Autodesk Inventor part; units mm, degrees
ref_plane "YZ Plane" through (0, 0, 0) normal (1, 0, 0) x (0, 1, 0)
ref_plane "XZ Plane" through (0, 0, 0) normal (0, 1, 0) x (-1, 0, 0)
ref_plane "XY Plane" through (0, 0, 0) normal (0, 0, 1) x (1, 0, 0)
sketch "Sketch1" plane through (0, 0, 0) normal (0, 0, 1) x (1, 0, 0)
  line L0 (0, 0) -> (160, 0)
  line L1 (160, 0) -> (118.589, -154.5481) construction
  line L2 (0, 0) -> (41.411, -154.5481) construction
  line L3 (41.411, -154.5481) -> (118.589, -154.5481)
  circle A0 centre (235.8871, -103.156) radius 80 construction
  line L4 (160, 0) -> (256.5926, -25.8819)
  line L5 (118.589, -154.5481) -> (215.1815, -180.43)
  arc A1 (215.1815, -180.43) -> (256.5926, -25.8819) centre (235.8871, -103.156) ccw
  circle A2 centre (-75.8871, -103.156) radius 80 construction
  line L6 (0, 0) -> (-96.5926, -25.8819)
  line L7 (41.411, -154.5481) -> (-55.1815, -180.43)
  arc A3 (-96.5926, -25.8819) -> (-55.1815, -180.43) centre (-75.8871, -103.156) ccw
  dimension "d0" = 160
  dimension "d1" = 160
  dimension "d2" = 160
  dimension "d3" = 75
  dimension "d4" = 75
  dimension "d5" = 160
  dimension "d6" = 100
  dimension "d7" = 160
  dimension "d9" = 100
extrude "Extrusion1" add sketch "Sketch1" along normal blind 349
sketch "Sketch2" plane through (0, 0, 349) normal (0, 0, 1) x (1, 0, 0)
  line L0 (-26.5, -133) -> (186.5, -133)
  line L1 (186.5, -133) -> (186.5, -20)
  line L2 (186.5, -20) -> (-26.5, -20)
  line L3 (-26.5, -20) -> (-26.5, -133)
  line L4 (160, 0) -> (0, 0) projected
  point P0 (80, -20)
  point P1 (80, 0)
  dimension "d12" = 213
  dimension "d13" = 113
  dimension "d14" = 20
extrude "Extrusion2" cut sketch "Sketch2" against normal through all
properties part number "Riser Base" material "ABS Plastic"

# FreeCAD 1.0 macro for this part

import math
import FreeCAD as App
import Part
import Sketcher
Q = App.Units.Quantity


def add_polygon(sketch, points):
    """Adds a closed chain of lines whose ends are joined by coincident constraints."""
    first, n = sketch.GeometryCount, len(points)
    for a, b in zip(points, points[1:] + points[:1]):
        sketch.addGeometry(Part.LineSegment(App.Vector(*a, 0), App.Vector(*b, 0)), False)
    for i in range(n):
        sketch.addConstraint(Sketcher.Constraint("Coincident", first + i, 2, first + (i + 1) % n, 1))

doc = App.newDocument("Part")
body = doc.addObject("PartDesign::Body", "Body")

# Sketch on XY plane
sketch1 = body.newObject("Sketcher::SketchObject", "Sketch")
sketch1.AttachmentSupport = (doc.getObject("XY_Plane"), [""])
sketch1.MapMode = "FlatFace"
sketch1.addGeometry([
    Part.LineSegment(App.Vector(160, 0, 0), App.Vector(0, 0, 0)),  # 0
    Part.LineSegment(App.Vector(0, 0, 0), App.Vector(-96.5926, -25.8819, 0)),  # 1
    Part.ArcOfCircle(Part.Circle(App.Vector(-75.8871, -103.156, 0), App.Vector(0, 0, 1), 80), math.radians(104.999977), math.radians(285.000065)),  # 2
    Part.LineSegment(App.Vector(-55.1815, -180.43, 0), App.Vector(41.411, -154.5481, 0)),  # 3
    Part.LineSegment(App.Vector(41.411, -154.5481, 0), App.Vector(118.589, -154.5481, 0)),  # 4
    Part.LineSegment(App.Vector(118.589, -154.5481, 0), App.Vector(215.1815, -180.43, 0)),  # 5
    Part.ArcOfCircle(Part.Circle(App.Vector(235.8871, -103.156, 0), App.Vector(0, 0, 1), 80), math.radians(-105.000065), math.radians(75.000023)),  # 6
    Part.LineSegment(App.Vector(256.5926, -25.8819, 0), App.Vector(160, 0, 0)),  # 7
], False)
sketch1.addConstraint([
    Sketcher.Constraint("Coincident", 0, 2, 1, 1),
    Sketcher.Constraint("Tangent", 1, 2, 2, 1),
    Sketcher.Constraint("Tangent", 2, 2, 3, 1),
    Sketcher.Constraint("Coincident", 3, 2, 4, 1),
    Sketcher.Constraint("Coincident", 4, 2, 5, 1),
    Sketcher.Constraint("Tangent", 5, 2, 6, 1),
    Sketcher.Constraint("Tangent", 6, 2, 7, 1),
    Sketcher.Constraint("Coincident", 7, 2, 0, 1),
    Sketcher.Constraint("Horizontal", 0),
    Sketcher.Constraint("Horizontal", 4),
    Sketcher.Constraint("Coincident", 0, 2, -1, 1),
    Sketcher.Constraint("Equal", 2, 6),
    Sketcher.Constraint("Parallel", 1, 3),
    Sketcher.Constraint("Parallel", 5, 7),
    Sketcher.Constraint("Horizontal", 2, 3, 6, 3),
    Sketcher.Constraint("Horizontal", 2, 2, 5, 2),
    Sketcher.Constraint("Equal", 1, 3),
    Sketcher.Constraint("Radius", 2, 80.0),
    Sketcher.Constraint("DistanceX", 0, 2, 0, 1, 160.0),
    Sketcher.Constraint("Distance", 1, 100.0),
    Sketcher.Constraint("Angle", 1, Q("-165 deg")),
])
pad1 = body.newObject("PartDesign::Pad", "Pad")
pad1.Profile = sketch1
pad1.Length = 349

# Sketch on XY plane
sketch2 = body.newObject("Sketcher::SketchObject", "Sketch001")
sketch2.AttachmentSupport = (doc.getObject("XY_Plane"), [""])
sketch2.MapMode = "FlatFace"
sketch2.AttachmentOffset = App.Placement(App.Vector(0, 0, 349), App.Rotation())
add_polygon(sketch2, [(-26.5, -20), (-26.5, -133), (186.5, -133), (186.5, -20)])  # lines 0-3
sketch2.addConstraint([
    Sketcher.Constraint("Vertical", 0),
    Sketcher.Constraint("Horizontal", 1),
    Sketcher.Constraint("Vertical", 2),
    Sketcher.Constraint("Horizontal", 3),
    Sketcher.Constraint("DistanceX", 1, 1, 1, 2, 213.0),
    Sketcher.Constraint("DistanceY", 0, 2, 0, 1, 113.0),
    Sketcher.Constraint("DistanceY", 2, 2, -1, 1, 20.0),
    Sketcher.Constraint("DistanceX", 0, 2, -1, 1, 26.5),
])
pocket1 = body.newObject("PartDesign::Pocket", "Pocket")
pocket1.Profile = sketch2
pocket1.Type = "ThroughAll"

doc.recompute()
